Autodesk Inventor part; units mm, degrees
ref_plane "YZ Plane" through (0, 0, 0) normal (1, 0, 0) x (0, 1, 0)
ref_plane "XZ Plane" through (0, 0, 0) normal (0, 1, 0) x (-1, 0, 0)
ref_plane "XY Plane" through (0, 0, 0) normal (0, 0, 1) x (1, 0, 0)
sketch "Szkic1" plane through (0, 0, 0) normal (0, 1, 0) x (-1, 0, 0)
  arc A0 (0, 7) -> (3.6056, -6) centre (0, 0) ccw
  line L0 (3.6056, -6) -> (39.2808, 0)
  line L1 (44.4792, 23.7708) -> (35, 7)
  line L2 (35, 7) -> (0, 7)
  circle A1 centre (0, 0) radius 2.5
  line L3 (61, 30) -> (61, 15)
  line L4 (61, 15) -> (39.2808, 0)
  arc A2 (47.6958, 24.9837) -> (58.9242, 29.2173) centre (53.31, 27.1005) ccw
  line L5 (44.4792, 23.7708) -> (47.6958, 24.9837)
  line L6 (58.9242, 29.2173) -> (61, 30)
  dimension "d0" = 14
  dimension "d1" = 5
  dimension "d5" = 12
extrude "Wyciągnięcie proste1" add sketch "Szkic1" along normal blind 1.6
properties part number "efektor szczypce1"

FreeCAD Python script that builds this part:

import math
import FreeCAD as App
import Part
import Sketcher
Q = App.Units.Quantity

doc = App.newDocument("Part")
body = doc.addObject("PartDesign::Body", "Body")

sketch1 = doc.addObject("Sketcher::SketchObject", "Sketch")
body.addObject(sketch1)
sketch1.AttachmentSupport = (doc.XZ_Plane, [""])
sketch1.MapMode = "FlatFace"
sketch1.addGeometry(Part.LineSegment(App.Vector(-35, 7, 0), App.Vector(0, 7, 0)), False)
sketch1.addGeometry(Part.ArcOfCircle(Part.Circle(App.Vector(0, 0, 0), App.Vector(0, 0, 1), 7), math.radians(-121), math.radians(90)), False)
sketch1.addGeometry(Part.LineSegment(App.Vector(-3.6, -6, 0), App.Vector(-39.3, 0, 0)), False)
sketch1.addGeometry(Part.LineSegment(App.Vector(-39.3, 0, 0), App.Vector(-61, 15, 0)), False)
sketch1.addGeometry(Part.LineSegment(App.Vector(-61, 15, 0), App.Vector(-61, 30, 0)), False)
sketch1.addGeometry(Part.LineSegment(App.Vector(-61, 30, 0), App.Vector(-58.9, 29.2, 0)), False)
sketch1.addGeometry(Part.ArcOfCircle(Part.Circle(App.Vector(-53.3, 27.1, 0), App.Vector(0, 0, 1), 6), math.radians(159), math.radians(339)), False)
sketch1.addGeometry(Part.LineSegment(App.Vector(-47.7, 25, 0), App.Vector(-44.5, 23.8, 0)), False)
sketch1.addGeometry(Part.LineSegment(App.Vector(-44.5, 23.8, 0), App.Vector(-35, 7, 0)), False)
sketch1.addGeometry(Part.Circle(App.Vector(0, 0, 0), App.Vector(0, 0, 1), 2.5), False)
sketch1.addConstraint(Sketcher.Constraint("Tangent", 0, 2, 1, 2))
sketch1.addConstraint(Sketcher.Constraint("Coincident", 1, 1, 2, 1))
sketch1.addConstraint(Sketcher.Constraint("Coincident", 2, 2, 3, 1))
sketch1.addConstraint(Sketcher.Constraint("Coincident", 3, 2, 4, 1))
sketch1.addConstraint(Sketcher.Constraint("Coincident", 4, 2, 5, 1))
sketch1.addConstraint(Sketcher.Constraint("Coincident", 5, 2, 6, 1))
sketch1.addConstraint(Sketcher.Constraint("Coincident", 6, 2, 7, 1))
sketch1.addConstraint(Sketcher.Constraint("Coincident", 7, 2, 8, 1))
sketch1.addConstraint(Sketcher.Constraint("Coincident", 8, 2, 0, 1))
sketch1.addConstraint(Sketcher.Constraint("Horizontal", 0))
sketch1.addConstraint(Sketcher.Constraint("Vertical", 4))
sketch1.addConstraint(Sketcher.Constraint("Coincident", 1, 3, -1, 1))
sketch1.addConstraint(Sketcher.Constraint("Coincident", 9, 3, -1, 1))
sketch1.addConstraint(Sketcher.Constraint("PointOnObject", 2, 2, -1))
sketch1.addConstraint(Sketcher.Constraint("Parallel", 5, 7))
sketch1.addConstraint(Sketcher.Constraint("Diameter", 9, Q("5 mm")))
sketch1.addConstraint(Sketcher.Constraint("Radius", 1, Q("7 mm")))
sketch1.addConstraint(Sketcher.Constraint("Radius", 6, Q("6 mm")))
sketch1.addConstraint(Sketcher.Constraint("DistanceX", 0, 1, 0, 2, Q("35 mm")))
sketch1.addConstraint(Sketcher.Constraint("DistanceY", 4, 1, 4, 2, Q("15 mm")))
sketch1.addConstraint(Sketcher.Constraint("DistanceY", 1, 1, -1, 1, Q("6 mm")))
sketch1.addConstraint(Sketcher.Constraint("DistanceX", 3, 2, -1, 1, Q("61 mm")))
sketch1.addConstraint(Sketcher.Constraint("DistanceY", -1, 1, 3, 2, Q("15 mm")))
sketch1.addConstraint(Sketcher.Constraint("Angle", 3, Q("145.3698 deg")))
sketch1.addConstraint(Sketcher.Constraint("Angle", 5, Q("-20.6594 deg")))
sketch1.addConstraint(Sketcher.Constraint("DistanceX", 6, 3, -1, 1, Q("53.31 mm")))
sketch1.addConstraint(Sketcher.Constraint("DistanceX", 6, 2, 2, 2, Q("8.415 mm")))
sketch1.addConstraint(Sketcher.Constraint("DistanceY", 7, 2, 6, 2, Q("1.213 mm")))
sketch1.addConstraint(Sketcher.Constraint("DistanceX", 5, 2, 7, 2, Q("14.445 mm")))
pad1 = doc.addObject("PartDesign::Pad", "Pad")
body.addObject(pad1)
pad1.Profile = sketch1
pad1.Length = 1.6
pad1.Reversed = True

doc.recompute()
